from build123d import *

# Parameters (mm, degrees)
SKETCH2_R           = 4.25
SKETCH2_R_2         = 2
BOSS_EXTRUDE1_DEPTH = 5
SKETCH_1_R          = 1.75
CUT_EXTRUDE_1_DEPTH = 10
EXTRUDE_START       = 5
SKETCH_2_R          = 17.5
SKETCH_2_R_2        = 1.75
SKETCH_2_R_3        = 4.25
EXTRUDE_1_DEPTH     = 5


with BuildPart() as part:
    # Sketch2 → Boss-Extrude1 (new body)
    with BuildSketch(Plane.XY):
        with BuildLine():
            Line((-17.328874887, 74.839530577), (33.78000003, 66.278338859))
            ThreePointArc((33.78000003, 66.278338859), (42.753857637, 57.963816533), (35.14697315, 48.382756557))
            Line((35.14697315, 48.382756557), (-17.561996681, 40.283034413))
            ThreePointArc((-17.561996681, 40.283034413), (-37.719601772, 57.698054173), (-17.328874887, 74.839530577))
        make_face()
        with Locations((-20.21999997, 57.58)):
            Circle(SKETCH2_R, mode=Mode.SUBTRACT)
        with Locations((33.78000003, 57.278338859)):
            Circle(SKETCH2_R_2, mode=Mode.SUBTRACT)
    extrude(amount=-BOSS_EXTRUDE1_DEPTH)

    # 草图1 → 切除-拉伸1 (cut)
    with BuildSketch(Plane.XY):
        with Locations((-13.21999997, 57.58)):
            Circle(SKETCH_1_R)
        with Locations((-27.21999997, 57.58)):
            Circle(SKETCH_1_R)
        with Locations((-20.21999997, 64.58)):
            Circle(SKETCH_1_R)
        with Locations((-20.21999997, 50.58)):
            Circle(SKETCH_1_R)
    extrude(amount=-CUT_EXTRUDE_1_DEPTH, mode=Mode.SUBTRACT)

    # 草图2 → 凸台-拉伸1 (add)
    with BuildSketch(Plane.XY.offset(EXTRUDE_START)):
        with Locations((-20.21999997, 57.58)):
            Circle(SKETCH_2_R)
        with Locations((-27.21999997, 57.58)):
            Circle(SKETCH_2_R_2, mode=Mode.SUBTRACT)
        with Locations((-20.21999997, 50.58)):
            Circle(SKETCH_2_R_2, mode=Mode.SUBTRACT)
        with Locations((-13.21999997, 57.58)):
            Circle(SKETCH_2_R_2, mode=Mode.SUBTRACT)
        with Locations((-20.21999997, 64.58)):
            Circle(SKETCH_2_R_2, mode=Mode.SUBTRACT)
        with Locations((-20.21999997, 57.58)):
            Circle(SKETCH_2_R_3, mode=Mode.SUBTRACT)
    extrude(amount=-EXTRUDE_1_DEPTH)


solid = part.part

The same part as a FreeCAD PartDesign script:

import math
import FreeCAD as App
import Part
import Sketcher
Q = App.Units.Quantity

doc = App.newDocument("Part")
body = doc.addObject("PartDesign::Body", "Body")

sketch1 = body.newObject("Sketcher::SketchObject", "Sketch")
sketch1.AttachmentSupport = (doc.getObject("XY_Plane"), [""])
sketch1.MapMode = "FlatFace"
sketch1.addGeometry([
    Part.LineSegment(App.Vector(33.8, 66.3, 0), App.Vector(-17.3, 74.8, 0)),
    Part.ArcOfCircle(Part.Circle(App.Vector(-20.2, 57.6, 0), App.Vector(0, 0, 1), 17.5), math.radians(80), math.radians(279)),
    Part.LineSegment(App.Vector(-17.6, 40.3, 0), App.Vector(35.1, 48.4, 0)),
    Part.ArcOfCircle(Part.Circle(App.Vector(33.8, 57.3, 0), App.Vector(0, 0, 1), 9), math.radians(-81), math.radians(90)),
    Part.Circle(App.Vector(33.8, 57.3, 0), App.Vector(0, 0, 1), 2),
    Part.Circle(App.Vector(-20.2, 57.6, 0), App.Vector(0, 0, 1), 4.2),
], False)
sketch1.addConstraint([
    Sketcher.Constraint("Tangent", 0, 2, 1, 1),
    Sketcher.Constraint("Tangent", 1, 2, 2, 1),
    Sketcher.Constraint("Tangent", 2, 2, 3, 1),
    Sketcher.Constraint("Coincident", 3, 2, 0, 1),
    Sketcher.Constraint("Coincident", 4, 3, 3, 3),
    Sketcher.Constraint("Coincident", 5, 3, 1, 3),
    Sketcher.Constraint("Vertical", 4, 3, 3, 2),
    Sketcher.Constraint("Diameter", 4, Q("4 mm")),
    Sketcher.Constraint("Radius", 3, Q("9 mm")),
    Sketcher.Constraint("Diameter", 5, Q("8.5 mm")),
    Sketcher.Constraint("Radius", 1, Q("17.5 mm")),
    Sketcher.Constraint("DistanceX", 1, 3, 3, 3, Q("54 mm")),
    Sketcher.Constraint("DistanceX", 1, 3, -1, 1, Q("20.22 mm")),
    Sketcher.Constraint("DistanceY", -1, 1, 1, 3, Q("57.58 mm")),
    Sketcher.Constraint("DistanceY", -1, 1, 3, 3, Q("57.278339 mm")),
])
pad1 = body.newObject("PartDesign::Pad", "Pad")
pad1.Profile = sketch1
pad1.Length = 5
pad1.Reversed = True

sketch2 = body.newObject("Sketcher::SketchObject", "Sketch001")
sketch2.AttachmentSupport = (doc.getObject("XY_Plane"), [""])
sketch2.MapMode = "FlatFace"
sketch2.addGeometry([
    Part.Circle(App.Vector(-13.2, 57.6, 0), App.Vector(0, 0, 1), 1.8),
    Part.Circle(App.Vector(-27.2, 57.6, 0), App.Vector(0, 0, 1), 1.8),
    Part.Circle(App.Vector(-20.2, 64.6, 0), App.Vector(0, 0, 1), 1.8),
    Part.Circle(App.Vector(-20.2, 50.6, 0), App.Vector(0, 0, 1), 1.8),
], False)
sketch2.addConstraint([
    Sketcher.Constraint("Equal", 0, 1),
    Sketcher.Constraint("Equal", 1, 2),
    Sketcher.Constraint("Equal", 2, 3),
    Sketcher.Constraint("Horizontal", 0, 3, 1, 3),
    Sketcher.Constraint("Vertical", 2, 3, 3, 3),
    Sketcher.Constraint("Diameter", 0, Q("3.5 mm")),
    Sketcher.Constraint("DistanceX", 1, 3, 0, 3, Q("14 mm")),
    Sketcher.Constraint("DistanceX", 2, 3, 0, 3, Q("7 mm")),
    Sketcher.Constraint("DistanceY", 0, 3, 2, 3, Q("7 mm")),
    Sketcher.Constraint("DistanceY", 3, 3, 0, 3, Q("7 mm")),
    Sketcher.Constraint("DistanceX", 0, 3, -1, 1, Q("13.22 mm")),
    Sketcher.Constraint("DistanceY", -1, 1, 0, 3, Q("57.58 mm")),
])
pocket1 = body.newObject("PartDesign::Pocket", "Pocket")
pocket1.Profile = sketch2
pocket1.Length = 10

sketch3 = body.newObject("Sketcher::SketchObject", "Sketch002")
sketch3.AttachmentSupport = (doc.getObject("XY_Plane"), [""])
sketch3.MapMode = "FlatFace"
sketch3.AttachmentOffset = App.Placement(App.Vector(0, 0, 5), App.Rotation())
sketch3.addGeometry([
    Part.Circle(App.Vector(-20.2, 57.6, 0), App.Vector(0, 0, 1), 17.5),
    Part.Circle(App.Vector(-27.2, 57.6, 0), App.Vector(0, 0, 1), 1.8),
    Part.Circle(App.Vector(-20.2, 50.6, 0), App.Vector(0, 0, 1), 1.8),
    Part.Circle(App.Vector(-13.2, 57.6, 0), App.Vector(0, 0, 1), 1.8),
    Part.Circle(App.Vector(-20.2, 57.6, 0), App.Vector(0, 0, 1), 4.2),
    Part.Circle(App.Vector(-20.2, 64.6, 0), App.Vector(0, 0, 1), 1.8),
], False)
sketch3.addConstraint([
    Sketcher.Constraint("Coincident", 4, 3, 0, 3),
    Sketcher.Constraint("Equal", 1, 2),
    Sketcher.Constraint("Equal", 2, 3),
    Sketcher.Constraint("Equal", 3, 5),
    Sketcher.Constraint("Horizontal", 0, 3, 1, 3),
    Sketcher.Constraint("Horizontal", 1, 3, 3, 3),
    Sketcher.Constraint("Vertical", 0, 3, 2, 3),
    Sketcher.Constraint("Vertical", 4, 3, 5, 3),
    Sketcher.Constraint("Diameter", 0, Q("35 mm")),
    Sketcher.Constraint("Diameter", 1, Q("3.5 mm")),
    Sketcher.Constraint("Diameter", 4, Q("8.5 mm")),
    Sketcher.Constraint("DistanceX", 1, 3, 0, 3, Q("7 mm")),
    Sketcher.Constraint("DistanceY", 2, 3, 0, 3, Q("7 mm")),
    Sketcher.Constraint("DistanceX", 0, 3, 3, 3, Q("7 mm")),
    Sketcher.Constraint("DistanceY", 0, 3, 5, 3, Q("7 mm")),
    Sketcher.Constraint("DistanceX", 0, 3, -1, 1, Q("20.22 mm")),
    Sketcher.Constraint("DistanceY", -1, 1, 0, 3, Q("57.58 mm")),
])
pad2 = body.newObject("PartDesign::Pad", "Pad001")
pad2.Profile = sketch3
pad2.Length = 5
pad2.Reversed = True

doc.recompute()
